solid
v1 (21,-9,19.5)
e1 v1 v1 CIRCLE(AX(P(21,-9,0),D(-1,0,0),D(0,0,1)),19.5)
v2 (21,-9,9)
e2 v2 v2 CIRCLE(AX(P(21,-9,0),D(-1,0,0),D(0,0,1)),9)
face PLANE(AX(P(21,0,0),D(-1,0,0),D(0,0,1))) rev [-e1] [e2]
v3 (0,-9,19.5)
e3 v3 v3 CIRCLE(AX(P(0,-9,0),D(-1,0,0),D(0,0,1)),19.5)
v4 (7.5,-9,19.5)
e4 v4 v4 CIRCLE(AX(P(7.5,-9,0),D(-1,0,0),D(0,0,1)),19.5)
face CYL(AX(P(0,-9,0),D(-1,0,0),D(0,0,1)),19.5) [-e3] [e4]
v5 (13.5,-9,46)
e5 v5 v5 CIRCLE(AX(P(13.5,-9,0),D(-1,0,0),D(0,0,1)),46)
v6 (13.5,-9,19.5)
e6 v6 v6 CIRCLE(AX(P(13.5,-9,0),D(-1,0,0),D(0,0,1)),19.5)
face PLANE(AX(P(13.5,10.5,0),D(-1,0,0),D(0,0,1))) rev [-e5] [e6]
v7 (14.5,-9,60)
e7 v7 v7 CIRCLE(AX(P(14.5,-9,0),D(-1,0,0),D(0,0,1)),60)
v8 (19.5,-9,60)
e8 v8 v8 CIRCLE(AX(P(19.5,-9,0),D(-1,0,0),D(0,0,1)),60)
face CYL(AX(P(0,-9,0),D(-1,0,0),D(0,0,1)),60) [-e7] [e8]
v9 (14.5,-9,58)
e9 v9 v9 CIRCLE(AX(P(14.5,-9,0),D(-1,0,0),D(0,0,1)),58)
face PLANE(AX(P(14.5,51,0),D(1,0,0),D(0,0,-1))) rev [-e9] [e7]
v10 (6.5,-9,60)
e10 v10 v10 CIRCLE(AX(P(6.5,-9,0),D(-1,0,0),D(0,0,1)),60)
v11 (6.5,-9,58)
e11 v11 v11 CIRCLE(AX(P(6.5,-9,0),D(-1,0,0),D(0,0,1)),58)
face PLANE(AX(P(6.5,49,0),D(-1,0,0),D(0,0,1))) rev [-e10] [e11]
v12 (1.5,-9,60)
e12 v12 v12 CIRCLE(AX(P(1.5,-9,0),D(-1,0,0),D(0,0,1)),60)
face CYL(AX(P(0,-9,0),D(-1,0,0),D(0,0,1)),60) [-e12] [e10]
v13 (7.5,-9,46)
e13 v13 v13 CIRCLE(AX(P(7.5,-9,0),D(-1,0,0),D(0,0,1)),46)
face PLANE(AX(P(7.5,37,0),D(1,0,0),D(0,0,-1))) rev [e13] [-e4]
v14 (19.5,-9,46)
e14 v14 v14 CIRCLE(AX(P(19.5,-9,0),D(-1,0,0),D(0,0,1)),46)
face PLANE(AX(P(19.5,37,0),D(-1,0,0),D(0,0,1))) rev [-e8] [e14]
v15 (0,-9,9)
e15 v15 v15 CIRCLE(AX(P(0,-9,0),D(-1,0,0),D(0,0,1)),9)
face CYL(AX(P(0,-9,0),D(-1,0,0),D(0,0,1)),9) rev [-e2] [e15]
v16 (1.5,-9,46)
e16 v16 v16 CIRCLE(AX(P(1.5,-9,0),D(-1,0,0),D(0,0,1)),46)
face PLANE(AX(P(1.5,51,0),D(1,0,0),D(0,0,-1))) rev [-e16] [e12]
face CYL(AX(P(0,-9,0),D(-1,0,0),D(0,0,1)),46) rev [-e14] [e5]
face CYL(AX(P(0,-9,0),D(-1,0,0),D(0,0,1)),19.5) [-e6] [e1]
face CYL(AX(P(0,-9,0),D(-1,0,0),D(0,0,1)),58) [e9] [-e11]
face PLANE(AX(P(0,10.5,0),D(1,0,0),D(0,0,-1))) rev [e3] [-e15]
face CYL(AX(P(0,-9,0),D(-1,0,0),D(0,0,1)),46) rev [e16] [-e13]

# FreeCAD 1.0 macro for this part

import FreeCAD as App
import Part
import Sketcher
from FreeCAD import Vector
Q = App.Units.Quantity

doc = App.newDocument("Part")
body = doc.addObject("PartDesign::Body", "Body")

# Sketch on XY plane
sketch1 = body.newObject("Sketcher::SketchObject", "Sketch")
sketch1.AttachmentSupport = (doc.getObject("XY_Plane"), [""])
sketch1.MapMode = "FlatFace"
sketch1.addGeometry([
    Part.LineSegment(Vector(0, 0, 0), Vector(21, 0, 0)),  # 0
    Part.LineSegment(Vector(21, 0, 0), Vector(21, 10.5, 0)),  # 1
    Part.LineSegment(Vector(21, 10.5, 0), Vector(13.5, 10.5, 0)),  # 2
    Part.LineSegment(Vector(13.5, 10.5, 0), Vector(13.5, 37, 0)),  # 3
    Part.LineSegment(Vector(13.5, 37, 0), Vector(19.5, 37, 0)),  # 4
    Part.LineSegment(Vector(19.5, 37, 0), Vector(19.5, 51, 0)),  # 5
    Part.LineSegment(Vector(19.5, 51, 0), Vector(14.5, 51, 0)),  # 6
    Part.LineSegment(Vector(14.5, 51, 0), Vector(14.5, 49, 0)),  # 7
    Part.LineSegment(Vector(14.5, 49, 0), Vector(6.5, 49, 0)),  # 8
    Part.LineSegment(Vector(6.5, 49, 0), Vector(6.5, 51, 0)),  # 9
    Part.LineSegment(Vector(6.5, 51, 0), Vector(1.5, 51, 0)),  # 10
    Part.LineSegment(Vector(1.5, 51, 0), Vector(1.5, 37, 0)),  # 11
    Part.LineSegment(Vector(1.5, 37, 0), Vector(7.5, 37, 0)),  # 12
    Part.LineSegment(Vector(7.5, 37, 0), Vector(7.5, 10.5, 0)),  # 13
    Part.LineSegment(Vector(7.5, 10.5, 0), Vector(0, 10.5, 0)),  # 14
    Part.LineSegment(Vector(0, 10.5, 0), Vector(0, 0, 0)),  # 15
], False)
sketch1.addGeometry(Part.LineSegment(Vector(0, -9, 0), Vector(21, -9, 0)), True)  # axis
sketch1.addConstraint([
    Sketcher.Constraint("Coincident", 0, 2, 1, 1),
    Sketcher.Constraint("Coincident", 1, 2, 2, 1),
    Sketcher.Constraint("Coincident", 2, 2, 3, 1),
    Sketcher.Constraint("Coincident", 3, 2, 4, 1),
    Sketcher.Constraint("Coincident", 4, 2, 5, 1),
    Sketcher.Constraint("Coincident", 5, 2, 6, 1),
    Sketcher.Constraint("Coincident", 6, 2, 7, 1),
    Sketcher.Constraint("Coincident", 7, 2, 8, 1),
    Sketcher.Constraint("Coincident", 8, 2, 9, 1),
    Sketcher.Constraint("Coincident", 9, 2, 10, 1),
    Sketcher.Constraint("Coincident", 10, 2, 11, 1),
    Sketcher.Constraint("Coincident", 11, 2, 12, 1),
    Sketcher.Constraint("Coincident", 12, 2, 13, 1),
    Sketcher.Constraint("Coincident", 13, 2, 14, 1),
    Sketcher.Constraint("Coincident", 14, 2, 15, 1),
    Sketcher.Constraint("Coincident", 15, 2, 0, 1),
    Sketcher.Constraint("Horizontal", 0),
    Sketcher.Constraint("Vertical", 1),
    Sketcher.Constraint("Horizontal", 2),
    Sketcher.Constraint("Vertical", 3),
    Sketcher.Constraint("Horizontal", 4),
    Sketcher.Constraint("Vertical", 5),
    Sketcher.Constraint("Horizontal", 6),
    Sketcher.Constraint("Vertical", 7),
    Sketcher.Constraint("Horizontal", 8),
    Sketcher.Constraint("Vertical", 9),
    Sketcher.Constraint("Horizontal", 10),
    Sketcher.Constraint("Vertical", 11),
    Sketcher.Constraint("Horizontal", 12),
    Sketcher.Constraint("Vertical", 13),
    Sketcher.Constraint("Horizontal", 14),
    Sketcher.Constraint("Vertical", 15),
    Sketcher.Constraint("Horizontal", 16),
    Sketcher.Constraint("Coincident", 15, 2, -1, 1),
    Sketcher.Constraint("PointOnObject", 16, 1, -2),
    Sketcher.Constraint("Horizontal", 6, 2, 9, 2),
    Sketcher.Constraint("Horizontal", 4, 2, 11, 2),
    Sketcher.Constraint("Horizontal", 2, 2, 13, 2),
    Sketcher.Constraint("Vertical", 1, 2, 16, 2),
    Sketcher.Constraint("Equal", 6, 10),
    Sketcher.Constraint("Equal", 4, 12),
    Sketcher.Constraint("Equal", 2, 14),
    Sketcher.Constraint("DistanceX", 0, 1, 0, 2, Q("21 mm")),
    Sketcher.Constraint("DistanceX", 4, 1, 4, 2, Q("6 mm")),
    Sketcher.Constraint("DistanceX", 6, 2, 6, 1, Q("5 mm")),
    Sketcher.Constraint("DistanceX", 8, 2, 8, 1, Q("8 mm")),
    Sketcher.Constraint("DistanceY", 5, 1, 5, 2, Q("14 mm")),
    Sketcher.Constraint("DistanceY", 7, 2, 7, 1, Q("2 mm")),
    Sketcher.Constraint("DistanceY", 1, 1, 1, 2, Q("10.5 mm")),
    Sketcher.Constraint("DistanceY", 3, 1, 3, 2, Q("26.5 mm")),
    Sketcher.Constraint("DistanceY", 16, 1, -1, 1, Q("9 mm")),
])
revolution = body.newObject("PartDesign::Revolution", "Revolution")
revolution.Profile = sketch1
revolution.ReferenceAxis = (sketch1, ["Axis0"])
revolution.Angle = 360

doc.recompute()
